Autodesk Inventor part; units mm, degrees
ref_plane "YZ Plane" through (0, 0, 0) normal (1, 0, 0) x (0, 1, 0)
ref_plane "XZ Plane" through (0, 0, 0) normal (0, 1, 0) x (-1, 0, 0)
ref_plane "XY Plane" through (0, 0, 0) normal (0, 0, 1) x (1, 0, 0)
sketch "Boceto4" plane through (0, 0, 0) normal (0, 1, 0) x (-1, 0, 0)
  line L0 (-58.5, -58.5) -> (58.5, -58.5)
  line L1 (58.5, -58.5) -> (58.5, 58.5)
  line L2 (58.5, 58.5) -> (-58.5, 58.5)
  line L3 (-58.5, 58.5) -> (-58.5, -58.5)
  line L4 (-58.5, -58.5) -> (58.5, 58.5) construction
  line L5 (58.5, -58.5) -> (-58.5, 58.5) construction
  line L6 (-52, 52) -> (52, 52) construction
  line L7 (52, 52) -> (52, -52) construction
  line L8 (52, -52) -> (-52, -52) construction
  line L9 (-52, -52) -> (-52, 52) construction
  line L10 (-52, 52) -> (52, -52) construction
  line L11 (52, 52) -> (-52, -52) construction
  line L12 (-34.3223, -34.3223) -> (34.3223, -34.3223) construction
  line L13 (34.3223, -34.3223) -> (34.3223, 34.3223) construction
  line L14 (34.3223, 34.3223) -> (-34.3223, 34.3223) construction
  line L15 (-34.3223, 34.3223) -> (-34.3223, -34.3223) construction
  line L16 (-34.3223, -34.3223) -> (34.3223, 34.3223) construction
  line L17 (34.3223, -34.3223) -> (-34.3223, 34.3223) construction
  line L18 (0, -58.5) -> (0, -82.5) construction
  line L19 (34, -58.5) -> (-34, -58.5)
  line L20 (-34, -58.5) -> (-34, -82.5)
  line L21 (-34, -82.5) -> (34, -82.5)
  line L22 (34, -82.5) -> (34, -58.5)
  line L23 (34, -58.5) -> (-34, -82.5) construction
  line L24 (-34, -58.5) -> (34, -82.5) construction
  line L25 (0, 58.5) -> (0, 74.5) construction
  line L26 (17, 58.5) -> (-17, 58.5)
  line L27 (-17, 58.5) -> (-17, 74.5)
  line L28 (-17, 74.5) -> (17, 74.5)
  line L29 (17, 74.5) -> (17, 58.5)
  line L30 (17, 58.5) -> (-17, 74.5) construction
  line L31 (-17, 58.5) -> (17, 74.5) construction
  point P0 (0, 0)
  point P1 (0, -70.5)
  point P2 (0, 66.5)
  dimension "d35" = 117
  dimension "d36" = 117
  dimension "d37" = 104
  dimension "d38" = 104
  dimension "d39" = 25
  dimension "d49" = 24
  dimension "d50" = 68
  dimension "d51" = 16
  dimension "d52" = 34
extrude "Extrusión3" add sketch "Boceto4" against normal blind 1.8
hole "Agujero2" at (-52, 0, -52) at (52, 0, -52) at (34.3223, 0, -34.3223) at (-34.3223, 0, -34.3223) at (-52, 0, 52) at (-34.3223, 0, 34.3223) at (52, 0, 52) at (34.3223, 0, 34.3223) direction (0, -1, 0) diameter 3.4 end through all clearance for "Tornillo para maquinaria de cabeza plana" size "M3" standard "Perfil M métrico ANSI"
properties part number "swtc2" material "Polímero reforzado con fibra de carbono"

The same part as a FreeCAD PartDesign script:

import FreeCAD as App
import Part
import Sketcher

doc = App.newDocument("Part")
params = doc.addObject("Spreadsheet::Sheet", "Params")
for row, (alias, value) in enumerate([
    ("sketch1_width", "68 mm"),
    ("sketch1_width2", "34 mm"),
    ("sketch1_height", "117 mm"),
    ("sketch1_height2", "24 mm"),
    ("sketch1_height3", "16 mm"),
    ("pad1_length", "1.8 mm"),
    ("sketch2_diameter", "3.4 mm"),
    ("hole_diameter", "3.4 mm"),
], start=1):
    params.set(f"A{row}", alias)
    params.set(f"B{row}", "=" + value)
    params.setAlias(f"B{row}", alias)

body = doc.addObject("PartDesign::Body", "Body")

sketch1 = body.newObject("Sketcher::SketchObject", "Sketch")
sketch1.AttachmentSupport = (doc.getObject("XZ_Plane"), [""])
sketch1.MapMode = "FlatFace"
sketch1.addGeometry([
    Part.LineSegment(App.Vector(58.5, 58.5, 0), App.Vector(58.5, -58.5, 0)),
    Part.LineSegment(App.Vector(58.5, -58.5, 0), App.Vector(34, -58.5, 0)),
    Part.LineSegment(App.Vector(34, -58.5, 0), App.Vector(34, -82.5, 0)),
    Part.LineSegment(App.Vector(34, -82.5, 0), App.Vector(-34, -82.5, 0)),
    Part.LineSegment(App.Vector(-34, -82.5, 0), App.Vector(-34, -58.5, 0)),
    Part.LineSegment(App.Vector(-34, -58.5, 0), App.Vector(-58.5, -58.5, 0)),
    Part.LineSegment(App.Vector(-58.5, -58.5, 0), App.Vector(-58.5, 58.5, 0)),
    Part.LineSegment(App.Vector(-58.5, 58.5, 0), App.Vector(-17, 58.5, 0)),
    Part.LineSegment(App.Vector(-17, 58.5, 0), App.Vector(-17, 74.5, 0)),
    Part.LineSegment(App.Vector(-17, 74.5, 0), App.Vector(17, 74.5, 0)),
    Part.LineSegment(App.Vector(17, 74.5, 0), App.Vector(17, 58.5, 0)),
    Part.LineSegment(App.Vector(17, 58.5, 0), App.Vector(58.5, 58.5, 0)),
], False)
sketch1.addConstraint([
    Sketcher.Constraint("Coincident", 0, 2, 1, 1),
    Sketcher.Constraint("Coincident", 1, 2, 2, 1),
    Sketcher.Constraint("Coincident", 2, 2, 3, 1),
    Sketcher.Constraint("Coincident", 3, 2, 4, 1),
    Sketcher.Constraint("Coincident", 4, 2, 5, 1),
    Sketcher.Constraint("Coincident", 5, 2, 6, 1),
    Sketcher.Constraint("Coincident", 6, 2, 7, 1),
    Sketcher.Constraint("Coincident", 7, 2, 8, 1),
    Sketcher.Constraint("Coincident", 8, 2, 9, 1),
    Sketcher.Constraint("Coincident", 9, 2, 10, 1),
    Sketcher.Constraint("Coincident", 10, 2, 11, 1),
    Sketcher.Constraint("Coincident", 11, 2, 0, 1),
    Sketcher.Constraint("Vertical", 0),
    Sketcher.Constraint("Horizontal", 1),
    Sketcher.Constraint("Vertical", 2),
    Sketcher.Constraint("Horizontal", 3),
    Sketcher.Constraint("Vertical", 4),
    Sketcher.Constraint("Horizontal", 5),
    Sketcher.Constraint("Vertical", 6),
    Sketcher.Constraint("Horizontal", 7),
    Sketcher.Constraint("Vertical", 8),
    Sketcher.Constraint("Horizontal", 9),
    Sketcher.Constraint("Vertical", 10),
    Sketcher.Constraint("Horizontal", 11),
    Sketcher.Constraint("Symmetric", 0, 2, 6, 2, -1, 1),
    Sketcher.Constraint("Symmetric", 1, 2, 4, 2, -2),
    Sketcher.Constraint("Symmetric", 7, 2, 10, 2, -2),
    Sketcher.Constraint("DistanceX", 3, 2, 3, 1, 68.0),
    Sketcher.Constraint("DistanceX", 9, 1, 9, 2, 34.0),
    Sketcher.Constraint("DistanceY", 0, 2, 0, 1, 117.0),
    Sketcher.Constraint("DistanceY", 2, 2, 2, 1, 24.0),
    Sketcher.Constraint("DistanceY", 8, 1, 8, 2, 16.0),
    Sketcher.Constraint("DistanceX", 5, 2, 0, 2, 117.0),
])
sketch1.setExpression("Constraints[27]", "Params.sketch1_width")
sketch1.setExpression("Constraints[28]", "Params.sketch1_width2")
sketch1.setExpression("Constraints[29]", "Params.sketch1_height")
sketch1.setExpression("Constraints[30]", "Params.sketch1_height2")
sketch1.setExpression("Constraints[31]", "Params.sketch1_height3")
pad1 = body.newObject("PartDesign::Pad", "Pad")
pad1.Profile = sketch1
pad1.setExpression("Length", "Params.pad1_length")

sketch2 = body.newObject("Sketcher::SketchObject", "Sketch001")
sketch2.AttachmentSupport = (doc.getObject("XZ_Plane"), [""])
sketch2.MapMode = "FlatFace"
sketch2.addGeometry([
    Part.Circle(App.Vector(-52, -52, 0), App.Vector(0, 0, 1), 1.7),
    Part.Circle(App.Vector(52, -52, 0), App.Vector(0, 0, 1), 1.7),
    Part.Circle(App.Vector(34.3223, -34.3223, 0), App.Vector(0, 0, 1), 1.7),
    Part.Circle(App.Vector(-34.3223, -34.3223, 0), App.Vector(0, 0, 1), 1.7),
    Part.Circle(App.Vector(-52, 52, 0), App.Vector(0, 0, 1), 1.7),
    Part.Circle(App.Vector(-34.3223, 34.3223, 0), App.Vector(0, 0, 1), 1.7),
    Part.Circle(App.Vector(52, 52, 0), App.Vector(0, 0, 1), 1.7),
    Part.Circle(App.Vector(34.3223, 34.3223, 0), App.Vector(0, 0, 1), 1.7),
], False)
sketch2.addConstraint([
    Sketcher.Constraint("Equal", 0, 1),
    Sketcher.Constraint("Equal", 1, 2),
    Sketcher.Constraint("Equal", 2, 3),
    Sketcher.Constraint("Equal", 3, 4),
    Sketcher.Constraint("Equal", 4, 5),
    Sketcher.Constraint("Equal", 5, 6),
    Sketcher.Constraint("Equal", 6, 7),
    Sketcher.Constraint("Symmetric", 1, 3, 4, 3, -1, 1),
    Sketcher.Constraint("Symmetric", 2, 3, 5, 3, -1, 1),
    Sketcher.Constraint("Symmetric", 0, 3, 6, 3, -1, 1),
    Sketcher.Constraint("Symmetric", 3, 3, 7, 3, -1, 1),
    Sketcher.Constraint("Symmetric", 0, 3, 1, 3, -2),
    Sketcher.Constraint("Symmetric", 2, 3, 3, 3, -2),
    Sketcher.Constraint("Diameter", 0, 3.4),
    Sketcher.Constraint("DistanceX", 0, 3, -1, 1, 52.0),
    Sketcher.Constraint("DistanceY", 0, 3, -1, 1, 52.0),
    Sketcher.Constraint("DistanceX", -1, 1, 2, 3, 34.3223),
    Sketcher.Constraint("DistanceY", 2, 3, -1, 1, 34.3223),
])
sketch2.setExpression("Constraints[13]", "Params.sketch2_diameter")
doc.recompute()
hole = body.newObject("PartDesign::Hole", "Hole")
hole.Profile = sketch2
hole.ThreadType = "None"
hole.setExpression("Diameter", "Params.hole_diameter")
hole.DepthType = "ThroughAll"
hole.Reversed = True

doc.recompute()
